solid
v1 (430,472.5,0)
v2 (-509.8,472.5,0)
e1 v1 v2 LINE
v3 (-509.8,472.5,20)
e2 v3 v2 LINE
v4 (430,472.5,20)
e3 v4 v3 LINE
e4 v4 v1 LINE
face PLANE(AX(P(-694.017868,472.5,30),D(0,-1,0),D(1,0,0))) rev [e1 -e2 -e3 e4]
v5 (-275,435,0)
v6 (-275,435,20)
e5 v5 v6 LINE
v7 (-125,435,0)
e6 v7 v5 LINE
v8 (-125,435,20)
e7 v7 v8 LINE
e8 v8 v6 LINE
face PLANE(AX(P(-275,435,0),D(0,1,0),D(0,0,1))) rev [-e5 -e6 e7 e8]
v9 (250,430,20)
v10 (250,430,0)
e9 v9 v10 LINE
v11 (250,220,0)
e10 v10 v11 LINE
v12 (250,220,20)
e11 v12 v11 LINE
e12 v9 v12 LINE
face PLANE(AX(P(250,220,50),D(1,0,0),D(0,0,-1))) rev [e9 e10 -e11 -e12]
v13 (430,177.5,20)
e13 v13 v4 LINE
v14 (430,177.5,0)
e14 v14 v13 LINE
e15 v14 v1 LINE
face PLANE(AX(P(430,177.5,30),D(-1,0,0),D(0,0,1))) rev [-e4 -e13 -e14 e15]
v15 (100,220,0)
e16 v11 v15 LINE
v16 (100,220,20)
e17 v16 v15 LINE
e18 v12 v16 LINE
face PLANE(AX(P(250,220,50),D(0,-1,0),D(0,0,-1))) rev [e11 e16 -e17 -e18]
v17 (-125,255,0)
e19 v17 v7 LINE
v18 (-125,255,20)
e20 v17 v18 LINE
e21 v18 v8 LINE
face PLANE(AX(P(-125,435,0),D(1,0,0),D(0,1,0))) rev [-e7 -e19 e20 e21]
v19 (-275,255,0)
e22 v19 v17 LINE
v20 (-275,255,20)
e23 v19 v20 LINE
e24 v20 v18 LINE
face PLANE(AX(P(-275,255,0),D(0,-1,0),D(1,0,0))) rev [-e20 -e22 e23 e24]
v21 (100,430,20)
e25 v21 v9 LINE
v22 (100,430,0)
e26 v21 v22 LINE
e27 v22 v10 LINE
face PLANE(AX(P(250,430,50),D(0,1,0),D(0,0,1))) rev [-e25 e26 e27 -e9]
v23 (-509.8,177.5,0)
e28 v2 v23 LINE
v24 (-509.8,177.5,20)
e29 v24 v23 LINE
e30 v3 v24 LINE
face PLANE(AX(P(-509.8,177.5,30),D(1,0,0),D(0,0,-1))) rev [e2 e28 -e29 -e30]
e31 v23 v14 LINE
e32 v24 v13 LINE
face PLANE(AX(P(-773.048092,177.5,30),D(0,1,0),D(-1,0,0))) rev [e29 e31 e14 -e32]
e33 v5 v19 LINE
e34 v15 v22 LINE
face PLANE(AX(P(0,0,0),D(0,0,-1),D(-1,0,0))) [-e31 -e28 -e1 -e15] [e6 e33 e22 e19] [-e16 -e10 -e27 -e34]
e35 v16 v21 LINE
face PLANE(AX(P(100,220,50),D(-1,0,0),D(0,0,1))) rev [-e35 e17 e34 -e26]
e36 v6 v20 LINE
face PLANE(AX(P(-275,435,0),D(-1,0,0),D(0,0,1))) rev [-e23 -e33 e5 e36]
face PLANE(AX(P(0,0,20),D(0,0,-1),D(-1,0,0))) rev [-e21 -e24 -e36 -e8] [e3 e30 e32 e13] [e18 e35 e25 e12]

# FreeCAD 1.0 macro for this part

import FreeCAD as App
import Part
import Sketcher

V = App.Vector
Q = App.Units.Quantity

doc = App.newDocument("Part")
params = doc.addObject("Spreadsheet::Sheet", "Params")
for row, (alias, value) in enumerate([
    ("sketch1_width", "1200 mm"),
    ("sketch1_height", "950 mm"),
    ("pad1_length", "20 mm"),
    ("sketch2_width", "150 mm"),
    ("sketch2_height", "180 mm"),
    ("pocket1_length", "20 mm"),
    ("sketch3_width", "650 mm"),
    ("sketch3_height", "500 mm"),
    ("pocket2_length", "20 mm"),
    ("pocket3_length", "50 mm"),
    ("sketch5_width", "150 mm"),
    ("sketch5_height", "210 mm"),
    ("pocket4_length", "50 mm"),
    ("pocket5_length", "30 mm"),
    ("pocket6_length", "30 mm"),
    ("sketch8_width", "170 mm"),
    ("sketch8_height", "295 mm"),
    ("sketch8_width2", "90.2 mm"),
    ("pocket7_length", "30 mm"),
], start=1):
    params.set(f"A{row}", alias)
    params.set(f"B{row}", "=" + value)
    params.setAlias(f"B{row}", alias)

body = doc.addObject("PartDesign::Body", "Body")

sketch1 = body.newObject("Sketcher::SketchObject", "Sketch")
sketch1.AttachmentSupport = (doc.getObject("XY_Plane"), [""])
sketch1.MapMode = "FlatFace"
sketch1.addGeometry([
    Part.LineSegment(V(-600, 475, 0), V(-600, -475, 0)),
    Part.LineSegment(V(-600, -475, 0), V(600, -475, 0)),
    Part.LineSegment(V(600, -475, 0), V(600, 475, 0)),
    Part.LineSegment(V(600, 475, 0), V(-600, 475, 0)),
], False)
sketch1.addConstraint([
    Sketcher.Constraint("Coincident", 0, 2, 1, 1),
    Sketcher.Constraint("Coincident", 1, 2, 2, 1),
    Sketcher.Constraint("Coincident", 2, 2, 3, 1),
    Sketcher.Constraint("Coincident", 3, 2, 0, 1),
    Sketcher.Constraint("Vertical", 0),
    Sketcher.Constraint("Horizontal", 1),
    Sketcher.Constraint("Vertical", 2),
    Sketcher.Constraint("Horizontal", 3),
    Sketcher.Constraint("Symmetric", 0, 2, 2, 2, -1, 1),
    Sketcher.Constraint("DistanceX", 1, 1, 1, 2, Q("1200 mm")),
    Sketcher.Constraint("DistanceY", 0, 2, 0, 1, Q("950 mm")),
])
sketch1.setExpression("Constraints[9]", "Params.sketch1_width")
sketch1.setExpression("Constraints[10]", "Params.sketch1_height")
pad1 = body.newObject("PartDesign::Pad", "Pad")
pad1.Profile = sketch1
pad1.setExpression("Length", "Params.pad1_length")

sketch2 = body.newObject("Sketcher::SketchObject", "Sketch001")
sketch2.AttachmentSupport = (doc.getObject("XY_Plane"), [""])
sketch2.MapMode = "FlatFace"
sketch2.AttachmentOffset = App.Placement(V(0, 0, 20), App.Rotation())
sketch2.addGeometry([
    Part.LineSegment(V(-275, 435, 0), V(-275, 255, 0)),
    Part.LineSegment(V(-275, 255, 0), V(-125, 255, 0)),
    Part.LineSegment(V(-125, 255, 0), V(-125, 435, 0)),
    Part.LineSegment(V(-125, 435, 0), V(-275, 435, 0)),
], False)
sketch2.addConstraint([
    Sketcher.Constraint("Coincident", 0, 2, 1, 1),
    Sketcher.Constraint("Coincident", 1, 2, 2, 1),
    Sketcher.Constraint("Coincident", 2, 2, 3, 1),
    Sketcher.Constraint("Coincident", 3, 2, 0, 1),
    Sketcher.Constraint("Vertical", 0),
    Sketcher.Constraint("Horizontal", 1),
    Sketcher.Constraint("Vertical", 2),
    Sketcher.Constraint("Horizontal", 3),
    Sketcher.Constraint("DistanceX", 1, 1, 1, 2, Q("150 mm")),
    Sketcher.Constraint("DistanceY", 0, 2, 0, 1, Q("180 mm")),
    Sketcher.Constraint("DistanceX", 0, 2, -1, 1, Q("275 mm")),
    Sketcher.Constraint("DistanceY", -1, 1, 0, 2, Q("255 mm")),
])
sketch2.setExpression("Constraints[8]", "Params.sketch2_width")
sketch2.setExpression("Constraints[9]", "Params.sketch2_height")
pocket1 = body.newObject("PartDesign::Pocket", "Pocket")
pocket1.Profile = sketch2
pocket1.setExpression("Length", "Params.pocket1_length")

sketch3 = body.newObject("Sketcher::SketchObject", "Sketch002")
sketch3.AttachmentSupport = (doc.getObject("XY_Plane"), [""])
sketch3.MapMode = "FlatFace"
sketch3.addGeometry([
    Part.LineSegment(V(375, 85, 0), V(375, -415, 0)),
    Part.LineSegment(V(375, -415, 0), V(-275, -415, 0)),
    Part.LineSegment(V(-275, -415, 0), V(-275, 85, 0)),
    Part.LineSegment(V(-275, 85, 0), V(375, 85, 0)),
], False)
sketch3.addConstraint([
    Sketcher.Constraint("Coincident", 0, 2, 1, 1),
    Sketcher.Constraint("Coincident", 1, 2, 2, 1),
    Sketcher.Constraint("Coincident", 2, 2, 3, 1),
    Sketcher.Constraint("Coincident", 3, 2, 0, 1),
    Sketcher.Constraint("Vertical", 0),
    Sketcher.Constraint("Horizontal", 1),
    Sketcher.Constraint("Vertical", 2),
    Sketcher.Constraint("Horizontal", 3),
    Sketcher.Constraint("DistanceX", 1, 2, 1, 1, Q("650 mm")),
    Sketcher.Constraint("DistanceY", 0, 2, 0, 1, Q("500 mm")),
    Sketcher.Constraint("DistanceX", -1, 1, 0, 2, Q("375 mm")),
    Sketcher.Constraint("DistanceY", 0, 2, -1, 1, Q("415 mm")),
])
sketch3.setExpression("Constraints[8]", "Params.sketch3_width")
sketch3.setExpression("Constraints[9]", "Params.sketch3_height")
pocket2 = body.newObject("PartDesign::Pocket", "Pocket001")
pocket2.Profile = sketch3
pocket2.setExpression("Length", "Params.pocket2_length")
pocket2.Reversed = True

sketch4 = body.newObject("Sketcher::SketchObject", "Sketch003")
sketch4.AttachmentSupport = (doc.getObject("XY_Plane"), [""])
sketch4.MapMode = "FlatFace"
sketch4.addGeometry([
    Part.LineSegment(V(633.284589, 175, 0), V(633.284589, -516.156085, 0)),
    Part.LineSegment(V(633.284589, -516.156085, 0), V(-737.025481, -516.156085, 0)),
    Part.LineSegment(V(-737.025481, -516.156085, 0), V(-737.025481, 175, 0)),
    Part.LineSegment(V(-737.025481, 175, 0), V(633.284589, 175, 0)),
], False)
sketch4.addConstraint([
    Sketcher.Constraint("Coincident", 0, 2, 1, 1),
    Sketcher.Constraint("Coincident", 1, 2, 2, 1),
    Sketcher.Constraint("Coincident", 2, 2, 3, 1),
    Sketcher.Constraint("Coincident", 3, 2, 0, 1),
    Sketcher.Constraint("Vertical", 0),
    Sketcher.Constraint("Horizontal", 1),
    Sketcher.Constraint("Vertical", 2),
    Sketcher.Constraint("Horizontal", 3),
    Sketcher.Constraint("DistanceY", -1, 1, 2, 2, Q("175 mm")),
    Sketcher.Constraint("DistanceX", 1, 2, 1, 1, Q("1370.31007 mm")),
    Sketcher.Constraint("DistanceY", 0, 2, 0, 1, Q("691.156085 mm")),
    Sketcher.Constraint("DistanceX", -1, 1, 0, 2, Q("633.284589 mm")),
])
pocket3 = body.newObject("PartDesign::Pocket", "Pocket002")
pocket3.Profile = sketch4
pocket3.setExpression("Length", "Params.pocket3_length")
pocket3.Reversed = True

sketch5 = body.newObject("Sketcher::SketchObject", "Sketch004")
sketch5.AttachmentSupport = (doc.getObject("XY_Plane"), [""])
sketch5.MapMode = "FlatFace"
sketch5.addGeometry([
    Part.LineSegment(V(250, 430, 0), V(250, 220, 0)),
    Part.LineSegment(V(250, 220, 0), V(100, 220, 0)),
    Part.LineSegment(V(100, 220, 0), V(100, 430, 0)),
    Part.LineSegment(V(100, 430, 0), V(250, 430, 0)),
], False)
sketch5.addConstraint([
    Sketcher.Constraint("Coincident", 0, 2, 1, 1),
    Sketcher.Constraint("Coincident", 1, 2, 2, 1),
    Sketcher.Constraint("Coincident", 2, 2, 3, 1),
    Sketcher.Constraint("Coincident", 3, 2, 0, 1),
    Sketcher.Constraint("Vertical", 0),
    Sketcher.Constraint("Horizontal", 1),
    Sketcher.Constraint("Vertical", 2),
    Sketcher.Constraint("Horizontal", 3),
    Sketcher.Constraint("DistanceX", 1, 2, 1, 1, Q("150 mm")),
    Sketcher.Constraint("DistanceY", 0, 2, 0, 1, Q("210 mm")),
    Sketcher.Constraint("DistanceX", -1, 1, 0, 2, Q("250 mm")),
    Sketcher.Constraint("DistanceY", -1, 1, 0, 2, Q("220 mm")),
])
sketch5.setExpression("Constraints[8]", "Params.sketch5_width")
sketch5.setExpression("Constraints[9]", "Params.sketch5_height")
pocket4 = body.newObject("PartDesign::Pocket", "Pocket003")
pocket4.Profile = sketch5
pocket4.setExpression("Length", "Params.pocket4_length")
pocket4.Reversed = True

sketch6 = body.newObject("Sketcher::SketchObject", "Sketch005")
sketch6.AttachmentSupport = (doc.getObject("XY_Plane"), [""])
sketch6.MapMode = "FlatFace"
sketch6.addGeometry([
    Part.LineSegment(V(820.733409, 962.069354, 0), V(820.733409, 472.5, 0)),
    Part.LineSegment(V(820.733409, 472.5, 0), V(-694.017868, 472.5, 0)),
    Part.LineSegment(V(-694.017868, 472.5, 0), V(-694.017868, 962.069354, 0)),
    Part.LineSegment(V(-694.017868, 962.069354, 0), V(820.733409, 962.069354, 0)),
], False)
sketch6.addConstraint([
    Sketcher.Constraint("Coincident", 0, 2, 1, 1),
    Sketcher.Constraint("Coincident", 1, 2, 2, 1),
    Sketcher.Constraint("Coincident", 2, 2, 3, 1),
    Sketcher.Constraint("Coincident", 3, 2, 0, 1),
    Sketcher.Constraint("Vertical", 0),
    Sketcher.Constraint("Horizontal", 1),
    Sketcher.Constraint("Vertical", 2),
    Sketcher.Constraint("Horizontal", 3),
    Sketcher.Constraint("DistanceY", -1, 1, 0, 2, Q("472.5 mm")),
    Sketcher.Constraint("DistanceX", 1, 2, 1, 1, Q("1514.751277 mm")),
    Sketcher.Constraint("DistanceY", 0, 2, 0, 1, Q("489.569354 mm")),
    Sketcher.Constraint("DistanceX", -1, 1, 0, 2, Q("820.733409 mm")),
])
pocket5 = body.newObject("PartDesign::Pocket", "Pocket004")
pocket5.Profile = sketch6
pocket5.setExpression("Length", "Params.pocket5_length")
pocket5.Reversed = True

sketch7 = body.newObject("Sketcher::SketchObject", "Sketch006")
sketch7.AttachmentSupport = (doc.getObject("XY_Plane"), [""])
sketch7.MapMode = "FlatFace"
sketch7.addGeometry([
    Part.LineSegment(V(955.505965, 177.5, 0), V(955.505965, -302.257847, 0)),
    Part.LineSegment(V(955.505965, -302.257847, 0), V(-773.048092, -302.257847, 0)),
    Part.LineSegment(V(-773.048092, -302.257847, 0), V(-773.048092, 177.5, 0)),
    Part.LineSegment(V(-773.048092, 177.5, 0), V(955.505965, 177.5, 0)),
], False)
sketch7.addConstraint([
    Sketcher.Constraint("Coincident", 0, 2, 1, 1),
    Sketcher.Constraint("Coincident", 1, 2, 2, 1),
    Sketcher.Constraint("Coincident", 2, 2, 3, 1),
    Sketcher.Constraint("Coincident", 3, 2, 0, 1),
    Sketcher.Constraint("Vertical", 0),
    Sketcher.Constraint("Horizontal", 1),
    Sketcher.Constraint("Vertical", 2),
    Sketcher.Constraint("Horizontal", 3),
    Sketcher.Constraint("DistanceY", -1, 1, 2, 2, Q("177.5 mm")),
    Sketcher.Constraint("DistanceX", 1, 2, 1, 1, Q("1728.554056 mm")),
    Sketcher.Constraint("DistanceY", 0, 2, 0, 1, Q("479.757847 mm")),
    Sketcher.Constraint("DistanceX", 1, 2, -1, 1, Q("773.048092 mm")),
])
pocket6 = body.newObject("PartDesign::Pocket", "Pocket005")
pocket6.Profile = sketch7
pocket6.setExpression("Length", "Params.pocket6_length")
pocket6.Reversed = True

sketch8 = body.newObject("Sketcher::SketchObject", "Sketch007")
sketch8.AttachmentSupport = (doc.getObject("XY_Plane"), [""])
sketch8.MapMode = "FlatFace"
sketch8.addGeometry([
    Part.LineSegment(V(-509.8, 472.5, 0), V(-509.8, 177.5, 0)),
    Part.LineSegment(V(-509.8, 177.5, 0), V(-600, 177.5, 0)),
    Part.LineSegment(V(-600, 177.5, 0), V(-600, 472.5, 0)),
    Part.LineSegment(V(-600, 472.5, 0), V(-509.8, 472.5, 0)),
    Part.LineSegment(V(600, 472.5, 0), V(600, 177.5, 0)),
    Part.LineSegment(V(600, 177.5, 0), V(430, 177.5, 0)),
    Part.LineSegment(V(430, 177.5, 0), V(430, 472.5, 0)),
    Part.LineSegment(V(430, 472.5, 0), V(600, 472.5, 0)),
], False)
sketch8.addConstraint([
    Sketcher.Constraint("Coincident", 0, 2, 1, 1),
    Sketcher.Constraint("Coincident", 1, 2, 2, 1),
    Sketcher.Constraint("Coincident", 2, 2, 3, 1),
    Sketcher.Constraint("Coincident", 3, 2, 0, 1),
    Sketcher.Constraint("Coincident", 4, 2, 5, 1),
    Sketcher.Constraint("Coincident", 5, 2, 6, 1),
    Sketcher.Constraint("Coincident", 6, 2, 7, 1),
    Sketcher.Constraint("Coincident", 7, 2, 4, 1),
    Sketcher.Constraint("Vertical", 0),
    Sketcher.Constraint("Horizontal", 1),
    Sketcher.Constraint("Vertical", 2),
    Sketcher.Constraint("Horizontal", 3),
    Sketcher.Constraint("Vertical", 4),
    Sketcher.Constraint("Horizontal", 5),
    Sketcher.Constraint("Vertical", 6),
    Sketcher.Constraint("Horizontal", 7),
    Sketcher.Constraint("Symmetric", 1, 2, 4, 2, -2),
    Sketcher.Constraint("Horizontal", 3, 2, 6, 2),
    Sketcher.Constraint("DistanceX", 5, 2, 5, 1, Q("170 mm")),
    Sketcher.Constraint("DistanceY", 0, 2, 0, 1, Q("295 mm")),
    Sketcher.Constraint("DistanceX", 1, 2, 1, 1, Q("90.2 mm")),
    Sketcher.Constraint("DistanceX", 1, 2, -1, 1, Q("600 mm")),
    Sketcher.Constraint("DistanceY", -1, 1, 0, 2, Q("177.5 mm")),
])
sketch8.setExpression("Constraints[18]", "Params.sketch8_width")
sketch8.setExpression("Constraints[19]", "Params.sketch8_height")
sketch8.setExpression("Constraints[20]", "Params.sketch8_width2")
pocket7 = body.newObject("PartDesign::Pocket", "Pocket006")
pocket7.Profile = sketch8
pocket7.setExpression("Length", "Params.pocket7_length")
pocket7.Reversed = True

doc.recompute()
